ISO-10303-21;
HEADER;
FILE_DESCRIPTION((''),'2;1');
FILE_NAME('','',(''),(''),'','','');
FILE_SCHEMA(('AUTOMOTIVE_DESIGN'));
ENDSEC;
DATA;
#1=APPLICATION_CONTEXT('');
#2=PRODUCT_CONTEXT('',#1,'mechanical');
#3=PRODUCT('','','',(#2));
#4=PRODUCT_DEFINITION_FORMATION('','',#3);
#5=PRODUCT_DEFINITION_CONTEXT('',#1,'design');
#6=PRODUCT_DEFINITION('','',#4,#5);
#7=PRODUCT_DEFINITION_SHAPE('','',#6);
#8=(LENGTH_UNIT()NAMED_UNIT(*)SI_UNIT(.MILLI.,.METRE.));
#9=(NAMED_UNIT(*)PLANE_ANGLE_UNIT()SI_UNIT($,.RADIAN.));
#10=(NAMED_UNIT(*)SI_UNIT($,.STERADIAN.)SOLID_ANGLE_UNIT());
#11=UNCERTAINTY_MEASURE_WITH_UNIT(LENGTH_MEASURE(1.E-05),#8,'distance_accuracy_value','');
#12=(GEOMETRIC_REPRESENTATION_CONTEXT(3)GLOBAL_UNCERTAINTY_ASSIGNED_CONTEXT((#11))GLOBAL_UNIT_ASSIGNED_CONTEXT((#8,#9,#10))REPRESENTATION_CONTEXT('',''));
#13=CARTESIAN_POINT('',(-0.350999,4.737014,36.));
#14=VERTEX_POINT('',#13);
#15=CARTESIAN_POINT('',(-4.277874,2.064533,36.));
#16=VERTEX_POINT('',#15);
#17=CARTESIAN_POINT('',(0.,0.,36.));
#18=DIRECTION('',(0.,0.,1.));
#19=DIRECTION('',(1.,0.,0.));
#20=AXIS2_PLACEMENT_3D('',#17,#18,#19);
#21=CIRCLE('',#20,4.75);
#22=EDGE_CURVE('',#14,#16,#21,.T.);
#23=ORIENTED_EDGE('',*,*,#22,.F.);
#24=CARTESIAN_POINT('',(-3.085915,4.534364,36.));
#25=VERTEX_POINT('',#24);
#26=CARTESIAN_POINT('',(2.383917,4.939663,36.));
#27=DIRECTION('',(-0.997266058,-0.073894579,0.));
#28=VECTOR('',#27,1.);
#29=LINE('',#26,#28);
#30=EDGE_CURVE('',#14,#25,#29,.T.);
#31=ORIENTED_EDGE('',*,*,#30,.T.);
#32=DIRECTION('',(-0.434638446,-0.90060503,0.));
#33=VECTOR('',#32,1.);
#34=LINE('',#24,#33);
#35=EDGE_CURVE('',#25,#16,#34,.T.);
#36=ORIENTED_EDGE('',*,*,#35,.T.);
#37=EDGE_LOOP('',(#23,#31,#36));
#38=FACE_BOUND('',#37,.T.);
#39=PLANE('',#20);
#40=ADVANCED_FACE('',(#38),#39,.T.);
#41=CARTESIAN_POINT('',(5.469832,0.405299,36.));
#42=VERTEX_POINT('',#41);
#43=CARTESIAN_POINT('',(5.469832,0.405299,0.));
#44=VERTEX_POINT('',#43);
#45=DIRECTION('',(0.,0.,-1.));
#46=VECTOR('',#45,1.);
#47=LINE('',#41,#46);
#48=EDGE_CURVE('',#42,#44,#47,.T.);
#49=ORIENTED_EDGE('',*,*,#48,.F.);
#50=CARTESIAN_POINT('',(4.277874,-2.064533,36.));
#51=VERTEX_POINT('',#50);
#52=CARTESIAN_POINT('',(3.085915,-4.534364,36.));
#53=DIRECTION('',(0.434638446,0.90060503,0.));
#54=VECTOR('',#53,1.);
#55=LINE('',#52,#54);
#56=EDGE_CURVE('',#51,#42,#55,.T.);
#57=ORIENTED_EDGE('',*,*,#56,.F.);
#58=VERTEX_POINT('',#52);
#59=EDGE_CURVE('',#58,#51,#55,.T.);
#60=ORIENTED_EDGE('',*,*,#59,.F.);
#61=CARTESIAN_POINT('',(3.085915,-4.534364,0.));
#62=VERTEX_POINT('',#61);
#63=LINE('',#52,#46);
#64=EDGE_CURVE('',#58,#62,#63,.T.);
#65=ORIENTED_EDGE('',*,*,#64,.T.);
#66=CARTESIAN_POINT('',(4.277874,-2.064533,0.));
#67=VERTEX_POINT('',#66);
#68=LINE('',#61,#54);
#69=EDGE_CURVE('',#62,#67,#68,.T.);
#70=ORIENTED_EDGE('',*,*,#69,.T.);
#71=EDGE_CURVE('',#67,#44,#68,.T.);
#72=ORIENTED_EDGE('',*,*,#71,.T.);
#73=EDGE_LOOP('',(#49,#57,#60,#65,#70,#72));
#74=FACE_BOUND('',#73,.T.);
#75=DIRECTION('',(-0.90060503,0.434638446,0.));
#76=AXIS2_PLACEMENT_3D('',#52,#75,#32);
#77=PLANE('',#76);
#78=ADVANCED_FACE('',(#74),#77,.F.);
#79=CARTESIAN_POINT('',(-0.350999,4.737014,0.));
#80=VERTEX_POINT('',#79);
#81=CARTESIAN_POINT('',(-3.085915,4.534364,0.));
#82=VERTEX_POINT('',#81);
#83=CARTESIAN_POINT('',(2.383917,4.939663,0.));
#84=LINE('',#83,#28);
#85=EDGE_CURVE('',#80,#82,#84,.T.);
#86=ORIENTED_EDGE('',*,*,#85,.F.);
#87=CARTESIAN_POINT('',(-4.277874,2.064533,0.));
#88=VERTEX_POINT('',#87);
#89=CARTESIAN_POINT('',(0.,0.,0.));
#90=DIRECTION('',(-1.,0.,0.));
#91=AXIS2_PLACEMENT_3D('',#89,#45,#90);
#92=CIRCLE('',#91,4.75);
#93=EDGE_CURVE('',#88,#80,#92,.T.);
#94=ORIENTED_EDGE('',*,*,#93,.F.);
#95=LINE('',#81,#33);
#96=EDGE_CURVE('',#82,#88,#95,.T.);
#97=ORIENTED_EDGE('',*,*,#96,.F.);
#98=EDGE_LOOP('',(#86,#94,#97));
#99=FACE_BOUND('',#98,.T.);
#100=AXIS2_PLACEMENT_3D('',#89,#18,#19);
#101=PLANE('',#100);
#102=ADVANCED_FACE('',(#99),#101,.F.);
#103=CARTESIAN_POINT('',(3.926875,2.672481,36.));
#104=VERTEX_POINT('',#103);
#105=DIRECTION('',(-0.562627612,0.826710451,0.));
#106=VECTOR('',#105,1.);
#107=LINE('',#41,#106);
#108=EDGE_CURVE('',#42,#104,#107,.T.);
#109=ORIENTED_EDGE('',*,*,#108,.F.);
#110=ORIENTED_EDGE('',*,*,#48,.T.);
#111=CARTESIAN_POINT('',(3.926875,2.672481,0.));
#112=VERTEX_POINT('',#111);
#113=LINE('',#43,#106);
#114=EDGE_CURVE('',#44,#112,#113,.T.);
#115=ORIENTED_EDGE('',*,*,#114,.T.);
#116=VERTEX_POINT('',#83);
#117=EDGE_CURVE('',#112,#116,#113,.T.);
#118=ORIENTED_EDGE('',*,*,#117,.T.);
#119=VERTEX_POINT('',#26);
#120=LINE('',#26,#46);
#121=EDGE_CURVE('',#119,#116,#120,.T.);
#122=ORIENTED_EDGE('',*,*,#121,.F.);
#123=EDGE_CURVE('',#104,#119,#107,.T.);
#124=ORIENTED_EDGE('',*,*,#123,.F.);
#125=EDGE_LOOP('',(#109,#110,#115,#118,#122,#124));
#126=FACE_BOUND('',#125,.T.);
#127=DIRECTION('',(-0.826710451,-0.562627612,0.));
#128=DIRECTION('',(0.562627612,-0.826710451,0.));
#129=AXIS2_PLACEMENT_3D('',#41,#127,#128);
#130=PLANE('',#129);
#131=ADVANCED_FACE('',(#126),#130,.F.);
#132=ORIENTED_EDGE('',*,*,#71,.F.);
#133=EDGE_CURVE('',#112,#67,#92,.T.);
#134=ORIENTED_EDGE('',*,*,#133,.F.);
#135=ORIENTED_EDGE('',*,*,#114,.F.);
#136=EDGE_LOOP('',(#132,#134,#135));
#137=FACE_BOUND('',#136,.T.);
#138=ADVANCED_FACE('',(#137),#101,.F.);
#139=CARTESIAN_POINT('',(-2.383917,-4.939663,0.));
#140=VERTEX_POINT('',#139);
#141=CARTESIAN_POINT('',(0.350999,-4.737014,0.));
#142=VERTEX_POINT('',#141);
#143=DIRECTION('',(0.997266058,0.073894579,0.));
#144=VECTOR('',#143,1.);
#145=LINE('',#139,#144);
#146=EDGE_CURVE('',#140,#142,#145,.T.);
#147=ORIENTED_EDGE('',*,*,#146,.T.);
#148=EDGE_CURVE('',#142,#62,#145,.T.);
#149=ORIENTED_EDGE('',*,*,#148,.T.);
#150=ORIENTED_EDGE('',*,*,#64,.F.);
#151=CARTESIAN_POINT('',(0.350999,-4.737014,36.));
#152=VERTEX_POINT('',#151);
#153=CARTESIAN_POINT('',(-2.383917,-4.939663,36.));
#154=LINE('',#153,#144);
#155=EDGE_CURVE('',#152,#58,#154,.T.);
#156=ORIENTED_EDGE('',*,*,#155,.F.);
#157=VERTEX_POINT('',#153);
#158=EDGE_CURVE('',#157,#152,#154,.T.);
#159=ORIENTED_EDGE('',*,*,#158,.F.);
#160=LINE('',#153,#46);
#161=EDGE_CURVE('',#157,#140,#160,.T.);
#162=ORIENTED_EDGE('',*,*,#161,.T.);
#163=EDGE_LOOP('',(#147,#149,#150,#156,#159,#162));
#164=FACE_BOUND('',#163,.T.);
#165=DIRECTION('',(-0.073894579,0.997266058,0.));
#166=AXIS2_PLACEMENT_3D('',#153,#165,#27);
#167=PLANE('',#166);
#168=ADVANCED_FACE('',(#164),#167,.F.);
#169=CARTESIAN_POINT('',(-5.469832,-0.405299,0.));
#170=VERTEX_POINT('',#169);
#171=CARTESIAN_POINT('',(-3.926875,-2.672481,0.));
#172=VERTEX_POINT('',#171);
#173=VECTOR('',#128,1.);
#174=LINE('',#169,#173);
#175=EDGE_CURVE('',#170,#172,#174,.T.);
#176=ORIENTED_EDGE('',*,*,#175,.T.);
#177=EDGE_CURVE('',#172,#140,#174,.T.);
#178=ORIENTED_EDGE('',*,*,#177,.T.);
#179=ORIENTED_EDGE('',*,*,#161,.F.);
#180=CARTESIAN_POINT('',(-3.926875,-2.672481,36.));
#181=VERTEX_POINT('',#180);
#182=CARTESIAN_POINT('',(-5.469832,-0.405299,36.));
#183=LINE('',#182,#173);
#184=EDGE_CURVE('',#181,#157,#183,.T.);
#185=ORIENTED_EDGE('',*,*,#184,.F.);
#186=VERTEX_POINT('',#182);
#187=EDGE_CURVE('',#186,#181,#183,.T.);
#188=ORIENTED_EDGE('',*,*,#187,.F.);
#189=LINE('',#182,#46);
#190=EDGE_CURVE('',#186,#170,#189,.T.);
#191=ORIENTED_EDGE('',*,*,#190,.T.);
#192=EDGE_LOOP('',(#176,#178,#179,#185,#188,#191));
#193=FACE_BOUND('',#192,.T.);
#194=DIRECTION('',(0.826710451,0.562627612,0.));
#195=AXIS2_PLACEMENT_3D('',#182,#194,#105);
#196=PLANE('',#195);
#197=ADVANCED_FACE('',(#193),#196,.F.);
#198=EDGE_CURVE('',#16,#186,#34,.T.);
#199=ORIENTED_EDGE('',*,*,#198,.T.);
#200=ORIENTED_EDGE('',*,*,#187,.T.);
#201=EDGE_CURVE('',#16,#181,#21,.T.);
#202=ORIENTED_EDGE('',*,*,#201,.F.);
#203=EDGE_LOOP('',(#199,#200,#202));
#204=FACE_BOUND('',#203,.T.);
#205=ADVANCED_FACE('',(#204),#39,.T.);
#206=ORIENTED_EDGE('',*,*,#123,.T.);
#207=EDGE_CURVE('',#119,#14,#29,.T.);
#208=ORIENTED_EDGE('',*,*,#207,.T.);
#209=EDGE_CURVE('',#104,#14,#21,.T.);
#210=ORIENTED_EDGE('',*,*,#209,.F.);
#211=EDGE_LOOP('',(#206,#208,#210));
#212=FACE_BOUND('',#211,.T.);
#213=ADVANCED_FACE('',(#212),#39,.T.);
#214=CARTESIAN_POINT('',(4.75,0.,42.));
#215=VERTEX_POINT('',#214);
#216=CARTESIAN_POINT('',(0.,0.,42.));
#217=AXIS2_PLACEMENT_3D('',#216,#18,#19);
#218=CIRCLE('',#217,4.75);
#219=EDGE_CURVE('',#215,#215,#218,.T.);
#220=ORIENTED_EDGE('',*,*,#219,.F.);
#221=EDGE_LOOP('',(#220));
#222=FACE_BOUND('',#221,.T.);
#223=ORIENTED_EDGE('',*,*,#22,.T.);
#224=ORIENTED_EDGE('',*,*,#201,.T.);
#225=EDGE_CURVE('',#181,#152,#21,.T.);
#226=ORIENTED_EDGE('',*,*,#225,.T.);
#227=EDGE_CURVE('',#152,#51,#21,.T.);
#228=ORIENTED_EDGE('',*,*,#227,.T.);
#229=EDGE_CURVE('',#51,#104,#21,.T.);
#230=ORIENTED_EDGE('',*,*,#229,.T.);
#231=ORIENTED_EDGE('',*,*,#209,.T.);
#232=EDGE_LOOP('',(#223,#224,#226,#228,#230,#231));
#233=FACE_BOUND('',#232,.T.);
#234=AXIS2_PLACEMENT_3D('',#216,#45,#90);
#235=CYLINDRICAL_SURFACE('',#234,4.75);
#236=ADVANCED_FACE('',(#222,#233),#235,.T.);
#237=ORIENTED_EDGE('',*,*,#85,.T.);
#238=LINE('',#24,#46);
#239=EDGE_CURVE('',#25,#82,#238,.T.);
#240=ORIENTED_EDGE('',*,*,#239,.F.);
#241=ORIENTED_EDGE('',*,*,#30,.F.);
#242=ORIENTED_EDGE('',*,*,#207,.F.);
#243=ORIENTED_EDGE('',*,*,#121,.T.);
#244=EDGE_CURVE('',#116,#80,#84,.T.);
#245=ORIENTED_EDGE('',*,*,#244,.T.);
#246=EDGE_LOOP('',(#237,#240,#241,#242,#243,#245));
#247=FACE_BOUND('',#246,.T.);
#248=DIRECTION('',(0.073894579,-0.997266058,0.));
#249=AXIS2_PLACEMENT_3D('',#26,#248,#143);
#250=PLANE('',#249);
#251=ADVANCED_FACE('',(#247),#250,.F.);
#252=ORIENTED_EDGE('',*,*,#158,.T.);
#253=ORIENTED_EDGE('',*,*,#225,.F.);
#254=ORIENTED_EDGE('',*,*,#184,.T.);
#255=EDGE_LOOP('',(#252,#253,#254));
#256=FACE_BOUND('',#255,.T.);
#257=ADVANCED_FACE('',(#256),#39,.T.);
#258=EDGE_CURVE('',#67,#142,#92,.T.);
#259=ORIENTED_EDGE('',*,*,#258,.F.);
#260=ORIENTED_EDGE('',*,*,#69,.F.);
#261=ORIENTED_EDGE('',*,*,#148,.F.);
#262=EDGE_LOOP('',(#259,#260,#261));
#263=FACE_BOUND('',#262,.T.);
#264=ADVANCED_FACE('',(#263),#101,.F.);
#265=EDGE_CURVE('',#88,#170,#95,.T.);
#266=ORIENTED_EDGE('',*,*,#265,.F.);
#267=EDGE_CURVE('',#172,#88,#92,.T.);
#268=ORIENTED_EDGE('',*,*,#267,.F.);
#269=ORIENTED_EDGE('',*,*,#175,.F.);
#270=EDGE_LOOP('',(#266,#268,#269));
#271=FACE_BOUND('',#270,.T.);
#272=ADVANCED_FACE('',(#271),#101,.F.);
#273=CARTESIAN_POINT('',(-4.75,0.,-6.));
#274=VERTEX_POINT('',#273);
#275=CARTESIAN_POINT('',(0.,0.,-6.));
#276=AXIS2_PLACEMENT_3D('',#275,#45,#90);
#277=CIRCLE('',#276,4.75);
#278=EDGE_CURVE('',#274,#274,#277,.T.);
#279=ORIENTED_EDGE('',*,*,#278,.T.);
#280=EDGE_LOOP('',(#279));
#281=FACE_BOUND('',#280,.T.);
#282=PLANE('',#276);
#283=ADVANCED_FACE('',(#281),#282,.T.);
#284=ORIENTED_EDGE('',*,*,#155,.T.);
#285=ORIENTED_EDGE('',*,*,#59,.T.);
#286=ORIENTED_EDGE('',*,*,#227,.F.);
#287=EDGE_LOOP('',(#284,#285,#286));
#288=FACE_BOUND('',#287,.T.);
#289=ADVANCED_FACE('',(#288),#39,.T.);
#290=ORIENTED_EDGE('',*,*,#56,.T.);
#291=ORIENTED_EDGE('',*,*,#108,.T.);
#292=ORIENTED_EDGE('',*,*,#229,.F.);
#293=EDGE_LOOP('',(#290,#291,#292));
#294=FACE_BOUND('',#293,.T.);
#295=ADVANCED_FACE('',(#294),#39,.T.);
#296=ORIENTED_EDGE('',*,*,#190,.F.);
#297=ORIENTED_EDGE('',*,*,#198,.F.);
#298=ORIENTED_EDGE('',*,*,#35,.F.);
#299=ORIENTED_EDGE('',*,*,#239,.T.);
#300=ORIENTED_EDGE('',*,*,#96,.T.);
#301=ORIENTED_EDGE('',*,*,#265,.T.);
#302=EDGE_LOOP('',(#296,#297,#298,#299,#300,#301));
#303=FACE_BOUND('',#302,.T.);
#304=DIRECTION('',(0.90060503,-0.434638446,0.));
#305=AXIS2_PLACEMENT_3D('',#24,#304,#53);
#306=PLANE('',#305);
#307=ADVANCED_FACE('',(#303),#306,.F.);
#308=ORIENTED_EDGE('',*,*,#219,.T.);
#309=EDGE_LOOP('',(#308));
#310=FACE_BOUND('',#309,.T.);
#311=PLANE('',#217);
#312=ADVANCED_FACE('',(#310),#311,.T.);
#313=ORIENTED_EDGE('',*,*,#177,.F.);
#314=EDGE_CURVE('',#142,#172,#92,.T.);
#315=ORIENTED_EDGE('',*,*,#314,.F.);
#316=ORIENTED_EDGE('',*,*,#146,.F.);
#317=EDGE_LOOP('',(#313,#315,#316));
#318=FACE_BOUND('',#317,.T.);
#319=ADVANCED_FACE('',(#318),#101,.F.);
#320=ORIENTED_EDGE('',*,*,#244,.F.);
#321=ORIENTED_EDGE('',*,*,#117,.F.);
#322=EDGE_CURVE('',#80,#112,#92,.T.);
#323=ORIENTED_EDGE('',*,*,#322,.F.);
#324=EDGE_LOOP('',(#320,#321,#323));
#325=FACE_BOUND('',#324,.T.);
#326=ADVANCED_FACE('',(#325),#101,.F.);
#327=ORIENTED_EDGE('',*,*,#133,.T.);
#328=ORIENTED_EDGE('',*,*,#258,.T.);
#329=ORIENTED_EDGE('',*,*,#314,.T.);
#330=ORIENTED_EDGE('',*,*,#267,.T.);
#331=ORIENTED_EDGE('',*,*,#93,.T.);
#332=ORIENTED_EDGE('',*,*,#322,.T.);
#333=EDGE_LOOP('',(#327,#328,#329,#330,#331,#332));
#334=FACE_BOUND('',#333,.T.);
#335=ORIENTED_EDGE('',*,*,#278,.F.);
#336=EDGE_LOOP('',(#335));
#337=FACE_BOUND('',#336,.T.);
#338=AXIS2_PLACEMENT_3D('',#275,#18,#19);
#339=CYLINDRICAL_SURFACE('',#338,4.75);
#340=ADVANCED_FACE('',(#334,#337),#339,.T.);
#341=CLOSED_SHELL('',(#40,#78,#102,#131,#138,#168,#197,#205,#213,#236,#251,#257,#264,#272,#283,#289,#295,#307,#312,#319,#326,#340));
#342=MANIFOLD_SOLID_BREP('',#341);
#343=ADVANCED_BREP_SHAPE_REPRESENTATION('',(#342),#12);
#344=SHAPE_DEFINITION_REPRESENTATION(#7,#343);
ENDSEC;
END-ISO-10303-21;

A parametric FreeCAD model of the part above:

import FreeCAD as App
import Part
import Sketcher

V = App.Vector


def add_polygon(sketch, points):
    """Adds a closed chain of lines whose ends are joined by coincident constraints."""
    first, n = sketch.GeometryCount, len(points)
    for a, b in zip(points, points[1:] + points[:1]):
        sketch.addGeometry(Part.LineSegment(App.Vector(*a, 0), App.Vector(*b, 0)), False)
    for i in range(n):
        sketch.addConstraint(Sketcher.Constraint("Coincident", first + i, 2, first + (i + 1) % n, 1))

doc = App.newDocument("Part")
params = doc.addObject("Spreadsheet::Sheet", "Params")
for row, (alias, value) in enumerate([
    ("pad1_length", "36 mm"),
    ("sketch2_diameter", "9.5 mm"),
    ("pad2_length", "6 mm"),
    ("sketch3_diameter", "9.5 mm"),
    ("pad3_length", "6 mm"),
], start=1):
    params.set(f"A{row}", alias)
    params.set(f"B{row}", "=" + value)
    params.setAlias(f"B{row}", alias)

body = doc.addObject("PartDesign::Body", "Body")

sketch1 = body.newObject("Sketcher::SketchObject", "Sketch")
sketch1.AttachmentSupport = (doc.getObject("XY_Plane"), [""])
sketch1.MapMode = "FlatFace"
add_polygon(sketch1, [(5, 0), (2, 5), (-3, 5), (-5, 0), (-2, -5), (3, -5)])
sketch1.addConstraint(Sketcher.Constraint("Symmetric", 0, 2, 3, 2, -1, 1))
sketch1.addConstraint(Sketcher.Constraint("Symmetric", 1, 2, 4, 2, -1, 1))
sketch1.addConstraint(Sketcher.Constraint("Symmetric", 2, 2, 5, 2, -1, 1))
sketch1.addConstraint(Sketcher.Constraint("Equal", 0, 1))
sketch1.addConstraint(Sketcher.Constraint("Equal", 1, 2))
sketch1.addConstraint(Sketcher.Constraint("DistanceX", 1, 2, 3, 2, 0.701999))
sketch1.addConstraint(Sketcher.Constraint("DistanceY", 2, 2, -1, 1, 0.405299))
sketch1.addConstraint(Sketcher.Constraint("DistanceY", 1, 2, 0, 2, 0.405299))
sketch1.addConstraint(Sketcher.Constraint("DistanceX", 2, 2, 0, 2, 7.853749))
pad1 = body.newObject("PartDesign::Pad", "Pad")
pad1.Profile = sketch1
pad1.setExpression("Length", "Params.pad1_length")

sketch2 = body.newObject("Sketcher::SketchObject", "Sketch001")
sketch2.AttachmentSupport = (doc.getObject("XY_Plane"), [""])
sketch2.MapMode = "FlatFace"
sketch2.addGeometry(Part.Circle(V(0, 0, 0), V(0, 0, 1), 4.8), False)
sketch2.addConstraint(Sketcher.Constraint("Coincident", 0, 3, -1, 1))
sketch2.addConstraint(Sketcher.Constraint("Diameter", 0, 9.5))
sketch2.setExpression("Constraints[1]", "Params.sketch2_diameter")
pad2 = body.newObject("PartDesign::Pad", "Pad001")
pad2.Profile = sketch2
pad2.setExpression("Length", "Params.pad2_length")
pad2.Reversed = True

sketch3 = body.newObject("Sketcher::SketchObject", "Sketch002")
sketch3.AttachmentSupport = (doc.getObject("XY_Plane"), [""])
sketch3.MapMode = "FlatFace"
sketch3.AttachmentOffset = App.Placement(V(0, 0, 42), App.Rotation())
sketch3.addGeometry(Part.Circle(V(0, 0, 0), V(0, 0, 1), 4.8), False)
sketch3.addConstraint(Sketcher.Constraint("Coincident", 0, 3, -1, 1))
sketch3.addConstraint(Sketcher.Constraint("Diameter", 0, 9.5))
sketch3.setExpression("Constraints[1]", "Params.sketch3_diameter")
pad3 = body.newObject("PartDesign::Pad", "Pad002")
pad3.Profile = sketch3
pad3.setExpression("Length", "Params.pad3_length")
pad3.Reversed = True

doc.recompute()
